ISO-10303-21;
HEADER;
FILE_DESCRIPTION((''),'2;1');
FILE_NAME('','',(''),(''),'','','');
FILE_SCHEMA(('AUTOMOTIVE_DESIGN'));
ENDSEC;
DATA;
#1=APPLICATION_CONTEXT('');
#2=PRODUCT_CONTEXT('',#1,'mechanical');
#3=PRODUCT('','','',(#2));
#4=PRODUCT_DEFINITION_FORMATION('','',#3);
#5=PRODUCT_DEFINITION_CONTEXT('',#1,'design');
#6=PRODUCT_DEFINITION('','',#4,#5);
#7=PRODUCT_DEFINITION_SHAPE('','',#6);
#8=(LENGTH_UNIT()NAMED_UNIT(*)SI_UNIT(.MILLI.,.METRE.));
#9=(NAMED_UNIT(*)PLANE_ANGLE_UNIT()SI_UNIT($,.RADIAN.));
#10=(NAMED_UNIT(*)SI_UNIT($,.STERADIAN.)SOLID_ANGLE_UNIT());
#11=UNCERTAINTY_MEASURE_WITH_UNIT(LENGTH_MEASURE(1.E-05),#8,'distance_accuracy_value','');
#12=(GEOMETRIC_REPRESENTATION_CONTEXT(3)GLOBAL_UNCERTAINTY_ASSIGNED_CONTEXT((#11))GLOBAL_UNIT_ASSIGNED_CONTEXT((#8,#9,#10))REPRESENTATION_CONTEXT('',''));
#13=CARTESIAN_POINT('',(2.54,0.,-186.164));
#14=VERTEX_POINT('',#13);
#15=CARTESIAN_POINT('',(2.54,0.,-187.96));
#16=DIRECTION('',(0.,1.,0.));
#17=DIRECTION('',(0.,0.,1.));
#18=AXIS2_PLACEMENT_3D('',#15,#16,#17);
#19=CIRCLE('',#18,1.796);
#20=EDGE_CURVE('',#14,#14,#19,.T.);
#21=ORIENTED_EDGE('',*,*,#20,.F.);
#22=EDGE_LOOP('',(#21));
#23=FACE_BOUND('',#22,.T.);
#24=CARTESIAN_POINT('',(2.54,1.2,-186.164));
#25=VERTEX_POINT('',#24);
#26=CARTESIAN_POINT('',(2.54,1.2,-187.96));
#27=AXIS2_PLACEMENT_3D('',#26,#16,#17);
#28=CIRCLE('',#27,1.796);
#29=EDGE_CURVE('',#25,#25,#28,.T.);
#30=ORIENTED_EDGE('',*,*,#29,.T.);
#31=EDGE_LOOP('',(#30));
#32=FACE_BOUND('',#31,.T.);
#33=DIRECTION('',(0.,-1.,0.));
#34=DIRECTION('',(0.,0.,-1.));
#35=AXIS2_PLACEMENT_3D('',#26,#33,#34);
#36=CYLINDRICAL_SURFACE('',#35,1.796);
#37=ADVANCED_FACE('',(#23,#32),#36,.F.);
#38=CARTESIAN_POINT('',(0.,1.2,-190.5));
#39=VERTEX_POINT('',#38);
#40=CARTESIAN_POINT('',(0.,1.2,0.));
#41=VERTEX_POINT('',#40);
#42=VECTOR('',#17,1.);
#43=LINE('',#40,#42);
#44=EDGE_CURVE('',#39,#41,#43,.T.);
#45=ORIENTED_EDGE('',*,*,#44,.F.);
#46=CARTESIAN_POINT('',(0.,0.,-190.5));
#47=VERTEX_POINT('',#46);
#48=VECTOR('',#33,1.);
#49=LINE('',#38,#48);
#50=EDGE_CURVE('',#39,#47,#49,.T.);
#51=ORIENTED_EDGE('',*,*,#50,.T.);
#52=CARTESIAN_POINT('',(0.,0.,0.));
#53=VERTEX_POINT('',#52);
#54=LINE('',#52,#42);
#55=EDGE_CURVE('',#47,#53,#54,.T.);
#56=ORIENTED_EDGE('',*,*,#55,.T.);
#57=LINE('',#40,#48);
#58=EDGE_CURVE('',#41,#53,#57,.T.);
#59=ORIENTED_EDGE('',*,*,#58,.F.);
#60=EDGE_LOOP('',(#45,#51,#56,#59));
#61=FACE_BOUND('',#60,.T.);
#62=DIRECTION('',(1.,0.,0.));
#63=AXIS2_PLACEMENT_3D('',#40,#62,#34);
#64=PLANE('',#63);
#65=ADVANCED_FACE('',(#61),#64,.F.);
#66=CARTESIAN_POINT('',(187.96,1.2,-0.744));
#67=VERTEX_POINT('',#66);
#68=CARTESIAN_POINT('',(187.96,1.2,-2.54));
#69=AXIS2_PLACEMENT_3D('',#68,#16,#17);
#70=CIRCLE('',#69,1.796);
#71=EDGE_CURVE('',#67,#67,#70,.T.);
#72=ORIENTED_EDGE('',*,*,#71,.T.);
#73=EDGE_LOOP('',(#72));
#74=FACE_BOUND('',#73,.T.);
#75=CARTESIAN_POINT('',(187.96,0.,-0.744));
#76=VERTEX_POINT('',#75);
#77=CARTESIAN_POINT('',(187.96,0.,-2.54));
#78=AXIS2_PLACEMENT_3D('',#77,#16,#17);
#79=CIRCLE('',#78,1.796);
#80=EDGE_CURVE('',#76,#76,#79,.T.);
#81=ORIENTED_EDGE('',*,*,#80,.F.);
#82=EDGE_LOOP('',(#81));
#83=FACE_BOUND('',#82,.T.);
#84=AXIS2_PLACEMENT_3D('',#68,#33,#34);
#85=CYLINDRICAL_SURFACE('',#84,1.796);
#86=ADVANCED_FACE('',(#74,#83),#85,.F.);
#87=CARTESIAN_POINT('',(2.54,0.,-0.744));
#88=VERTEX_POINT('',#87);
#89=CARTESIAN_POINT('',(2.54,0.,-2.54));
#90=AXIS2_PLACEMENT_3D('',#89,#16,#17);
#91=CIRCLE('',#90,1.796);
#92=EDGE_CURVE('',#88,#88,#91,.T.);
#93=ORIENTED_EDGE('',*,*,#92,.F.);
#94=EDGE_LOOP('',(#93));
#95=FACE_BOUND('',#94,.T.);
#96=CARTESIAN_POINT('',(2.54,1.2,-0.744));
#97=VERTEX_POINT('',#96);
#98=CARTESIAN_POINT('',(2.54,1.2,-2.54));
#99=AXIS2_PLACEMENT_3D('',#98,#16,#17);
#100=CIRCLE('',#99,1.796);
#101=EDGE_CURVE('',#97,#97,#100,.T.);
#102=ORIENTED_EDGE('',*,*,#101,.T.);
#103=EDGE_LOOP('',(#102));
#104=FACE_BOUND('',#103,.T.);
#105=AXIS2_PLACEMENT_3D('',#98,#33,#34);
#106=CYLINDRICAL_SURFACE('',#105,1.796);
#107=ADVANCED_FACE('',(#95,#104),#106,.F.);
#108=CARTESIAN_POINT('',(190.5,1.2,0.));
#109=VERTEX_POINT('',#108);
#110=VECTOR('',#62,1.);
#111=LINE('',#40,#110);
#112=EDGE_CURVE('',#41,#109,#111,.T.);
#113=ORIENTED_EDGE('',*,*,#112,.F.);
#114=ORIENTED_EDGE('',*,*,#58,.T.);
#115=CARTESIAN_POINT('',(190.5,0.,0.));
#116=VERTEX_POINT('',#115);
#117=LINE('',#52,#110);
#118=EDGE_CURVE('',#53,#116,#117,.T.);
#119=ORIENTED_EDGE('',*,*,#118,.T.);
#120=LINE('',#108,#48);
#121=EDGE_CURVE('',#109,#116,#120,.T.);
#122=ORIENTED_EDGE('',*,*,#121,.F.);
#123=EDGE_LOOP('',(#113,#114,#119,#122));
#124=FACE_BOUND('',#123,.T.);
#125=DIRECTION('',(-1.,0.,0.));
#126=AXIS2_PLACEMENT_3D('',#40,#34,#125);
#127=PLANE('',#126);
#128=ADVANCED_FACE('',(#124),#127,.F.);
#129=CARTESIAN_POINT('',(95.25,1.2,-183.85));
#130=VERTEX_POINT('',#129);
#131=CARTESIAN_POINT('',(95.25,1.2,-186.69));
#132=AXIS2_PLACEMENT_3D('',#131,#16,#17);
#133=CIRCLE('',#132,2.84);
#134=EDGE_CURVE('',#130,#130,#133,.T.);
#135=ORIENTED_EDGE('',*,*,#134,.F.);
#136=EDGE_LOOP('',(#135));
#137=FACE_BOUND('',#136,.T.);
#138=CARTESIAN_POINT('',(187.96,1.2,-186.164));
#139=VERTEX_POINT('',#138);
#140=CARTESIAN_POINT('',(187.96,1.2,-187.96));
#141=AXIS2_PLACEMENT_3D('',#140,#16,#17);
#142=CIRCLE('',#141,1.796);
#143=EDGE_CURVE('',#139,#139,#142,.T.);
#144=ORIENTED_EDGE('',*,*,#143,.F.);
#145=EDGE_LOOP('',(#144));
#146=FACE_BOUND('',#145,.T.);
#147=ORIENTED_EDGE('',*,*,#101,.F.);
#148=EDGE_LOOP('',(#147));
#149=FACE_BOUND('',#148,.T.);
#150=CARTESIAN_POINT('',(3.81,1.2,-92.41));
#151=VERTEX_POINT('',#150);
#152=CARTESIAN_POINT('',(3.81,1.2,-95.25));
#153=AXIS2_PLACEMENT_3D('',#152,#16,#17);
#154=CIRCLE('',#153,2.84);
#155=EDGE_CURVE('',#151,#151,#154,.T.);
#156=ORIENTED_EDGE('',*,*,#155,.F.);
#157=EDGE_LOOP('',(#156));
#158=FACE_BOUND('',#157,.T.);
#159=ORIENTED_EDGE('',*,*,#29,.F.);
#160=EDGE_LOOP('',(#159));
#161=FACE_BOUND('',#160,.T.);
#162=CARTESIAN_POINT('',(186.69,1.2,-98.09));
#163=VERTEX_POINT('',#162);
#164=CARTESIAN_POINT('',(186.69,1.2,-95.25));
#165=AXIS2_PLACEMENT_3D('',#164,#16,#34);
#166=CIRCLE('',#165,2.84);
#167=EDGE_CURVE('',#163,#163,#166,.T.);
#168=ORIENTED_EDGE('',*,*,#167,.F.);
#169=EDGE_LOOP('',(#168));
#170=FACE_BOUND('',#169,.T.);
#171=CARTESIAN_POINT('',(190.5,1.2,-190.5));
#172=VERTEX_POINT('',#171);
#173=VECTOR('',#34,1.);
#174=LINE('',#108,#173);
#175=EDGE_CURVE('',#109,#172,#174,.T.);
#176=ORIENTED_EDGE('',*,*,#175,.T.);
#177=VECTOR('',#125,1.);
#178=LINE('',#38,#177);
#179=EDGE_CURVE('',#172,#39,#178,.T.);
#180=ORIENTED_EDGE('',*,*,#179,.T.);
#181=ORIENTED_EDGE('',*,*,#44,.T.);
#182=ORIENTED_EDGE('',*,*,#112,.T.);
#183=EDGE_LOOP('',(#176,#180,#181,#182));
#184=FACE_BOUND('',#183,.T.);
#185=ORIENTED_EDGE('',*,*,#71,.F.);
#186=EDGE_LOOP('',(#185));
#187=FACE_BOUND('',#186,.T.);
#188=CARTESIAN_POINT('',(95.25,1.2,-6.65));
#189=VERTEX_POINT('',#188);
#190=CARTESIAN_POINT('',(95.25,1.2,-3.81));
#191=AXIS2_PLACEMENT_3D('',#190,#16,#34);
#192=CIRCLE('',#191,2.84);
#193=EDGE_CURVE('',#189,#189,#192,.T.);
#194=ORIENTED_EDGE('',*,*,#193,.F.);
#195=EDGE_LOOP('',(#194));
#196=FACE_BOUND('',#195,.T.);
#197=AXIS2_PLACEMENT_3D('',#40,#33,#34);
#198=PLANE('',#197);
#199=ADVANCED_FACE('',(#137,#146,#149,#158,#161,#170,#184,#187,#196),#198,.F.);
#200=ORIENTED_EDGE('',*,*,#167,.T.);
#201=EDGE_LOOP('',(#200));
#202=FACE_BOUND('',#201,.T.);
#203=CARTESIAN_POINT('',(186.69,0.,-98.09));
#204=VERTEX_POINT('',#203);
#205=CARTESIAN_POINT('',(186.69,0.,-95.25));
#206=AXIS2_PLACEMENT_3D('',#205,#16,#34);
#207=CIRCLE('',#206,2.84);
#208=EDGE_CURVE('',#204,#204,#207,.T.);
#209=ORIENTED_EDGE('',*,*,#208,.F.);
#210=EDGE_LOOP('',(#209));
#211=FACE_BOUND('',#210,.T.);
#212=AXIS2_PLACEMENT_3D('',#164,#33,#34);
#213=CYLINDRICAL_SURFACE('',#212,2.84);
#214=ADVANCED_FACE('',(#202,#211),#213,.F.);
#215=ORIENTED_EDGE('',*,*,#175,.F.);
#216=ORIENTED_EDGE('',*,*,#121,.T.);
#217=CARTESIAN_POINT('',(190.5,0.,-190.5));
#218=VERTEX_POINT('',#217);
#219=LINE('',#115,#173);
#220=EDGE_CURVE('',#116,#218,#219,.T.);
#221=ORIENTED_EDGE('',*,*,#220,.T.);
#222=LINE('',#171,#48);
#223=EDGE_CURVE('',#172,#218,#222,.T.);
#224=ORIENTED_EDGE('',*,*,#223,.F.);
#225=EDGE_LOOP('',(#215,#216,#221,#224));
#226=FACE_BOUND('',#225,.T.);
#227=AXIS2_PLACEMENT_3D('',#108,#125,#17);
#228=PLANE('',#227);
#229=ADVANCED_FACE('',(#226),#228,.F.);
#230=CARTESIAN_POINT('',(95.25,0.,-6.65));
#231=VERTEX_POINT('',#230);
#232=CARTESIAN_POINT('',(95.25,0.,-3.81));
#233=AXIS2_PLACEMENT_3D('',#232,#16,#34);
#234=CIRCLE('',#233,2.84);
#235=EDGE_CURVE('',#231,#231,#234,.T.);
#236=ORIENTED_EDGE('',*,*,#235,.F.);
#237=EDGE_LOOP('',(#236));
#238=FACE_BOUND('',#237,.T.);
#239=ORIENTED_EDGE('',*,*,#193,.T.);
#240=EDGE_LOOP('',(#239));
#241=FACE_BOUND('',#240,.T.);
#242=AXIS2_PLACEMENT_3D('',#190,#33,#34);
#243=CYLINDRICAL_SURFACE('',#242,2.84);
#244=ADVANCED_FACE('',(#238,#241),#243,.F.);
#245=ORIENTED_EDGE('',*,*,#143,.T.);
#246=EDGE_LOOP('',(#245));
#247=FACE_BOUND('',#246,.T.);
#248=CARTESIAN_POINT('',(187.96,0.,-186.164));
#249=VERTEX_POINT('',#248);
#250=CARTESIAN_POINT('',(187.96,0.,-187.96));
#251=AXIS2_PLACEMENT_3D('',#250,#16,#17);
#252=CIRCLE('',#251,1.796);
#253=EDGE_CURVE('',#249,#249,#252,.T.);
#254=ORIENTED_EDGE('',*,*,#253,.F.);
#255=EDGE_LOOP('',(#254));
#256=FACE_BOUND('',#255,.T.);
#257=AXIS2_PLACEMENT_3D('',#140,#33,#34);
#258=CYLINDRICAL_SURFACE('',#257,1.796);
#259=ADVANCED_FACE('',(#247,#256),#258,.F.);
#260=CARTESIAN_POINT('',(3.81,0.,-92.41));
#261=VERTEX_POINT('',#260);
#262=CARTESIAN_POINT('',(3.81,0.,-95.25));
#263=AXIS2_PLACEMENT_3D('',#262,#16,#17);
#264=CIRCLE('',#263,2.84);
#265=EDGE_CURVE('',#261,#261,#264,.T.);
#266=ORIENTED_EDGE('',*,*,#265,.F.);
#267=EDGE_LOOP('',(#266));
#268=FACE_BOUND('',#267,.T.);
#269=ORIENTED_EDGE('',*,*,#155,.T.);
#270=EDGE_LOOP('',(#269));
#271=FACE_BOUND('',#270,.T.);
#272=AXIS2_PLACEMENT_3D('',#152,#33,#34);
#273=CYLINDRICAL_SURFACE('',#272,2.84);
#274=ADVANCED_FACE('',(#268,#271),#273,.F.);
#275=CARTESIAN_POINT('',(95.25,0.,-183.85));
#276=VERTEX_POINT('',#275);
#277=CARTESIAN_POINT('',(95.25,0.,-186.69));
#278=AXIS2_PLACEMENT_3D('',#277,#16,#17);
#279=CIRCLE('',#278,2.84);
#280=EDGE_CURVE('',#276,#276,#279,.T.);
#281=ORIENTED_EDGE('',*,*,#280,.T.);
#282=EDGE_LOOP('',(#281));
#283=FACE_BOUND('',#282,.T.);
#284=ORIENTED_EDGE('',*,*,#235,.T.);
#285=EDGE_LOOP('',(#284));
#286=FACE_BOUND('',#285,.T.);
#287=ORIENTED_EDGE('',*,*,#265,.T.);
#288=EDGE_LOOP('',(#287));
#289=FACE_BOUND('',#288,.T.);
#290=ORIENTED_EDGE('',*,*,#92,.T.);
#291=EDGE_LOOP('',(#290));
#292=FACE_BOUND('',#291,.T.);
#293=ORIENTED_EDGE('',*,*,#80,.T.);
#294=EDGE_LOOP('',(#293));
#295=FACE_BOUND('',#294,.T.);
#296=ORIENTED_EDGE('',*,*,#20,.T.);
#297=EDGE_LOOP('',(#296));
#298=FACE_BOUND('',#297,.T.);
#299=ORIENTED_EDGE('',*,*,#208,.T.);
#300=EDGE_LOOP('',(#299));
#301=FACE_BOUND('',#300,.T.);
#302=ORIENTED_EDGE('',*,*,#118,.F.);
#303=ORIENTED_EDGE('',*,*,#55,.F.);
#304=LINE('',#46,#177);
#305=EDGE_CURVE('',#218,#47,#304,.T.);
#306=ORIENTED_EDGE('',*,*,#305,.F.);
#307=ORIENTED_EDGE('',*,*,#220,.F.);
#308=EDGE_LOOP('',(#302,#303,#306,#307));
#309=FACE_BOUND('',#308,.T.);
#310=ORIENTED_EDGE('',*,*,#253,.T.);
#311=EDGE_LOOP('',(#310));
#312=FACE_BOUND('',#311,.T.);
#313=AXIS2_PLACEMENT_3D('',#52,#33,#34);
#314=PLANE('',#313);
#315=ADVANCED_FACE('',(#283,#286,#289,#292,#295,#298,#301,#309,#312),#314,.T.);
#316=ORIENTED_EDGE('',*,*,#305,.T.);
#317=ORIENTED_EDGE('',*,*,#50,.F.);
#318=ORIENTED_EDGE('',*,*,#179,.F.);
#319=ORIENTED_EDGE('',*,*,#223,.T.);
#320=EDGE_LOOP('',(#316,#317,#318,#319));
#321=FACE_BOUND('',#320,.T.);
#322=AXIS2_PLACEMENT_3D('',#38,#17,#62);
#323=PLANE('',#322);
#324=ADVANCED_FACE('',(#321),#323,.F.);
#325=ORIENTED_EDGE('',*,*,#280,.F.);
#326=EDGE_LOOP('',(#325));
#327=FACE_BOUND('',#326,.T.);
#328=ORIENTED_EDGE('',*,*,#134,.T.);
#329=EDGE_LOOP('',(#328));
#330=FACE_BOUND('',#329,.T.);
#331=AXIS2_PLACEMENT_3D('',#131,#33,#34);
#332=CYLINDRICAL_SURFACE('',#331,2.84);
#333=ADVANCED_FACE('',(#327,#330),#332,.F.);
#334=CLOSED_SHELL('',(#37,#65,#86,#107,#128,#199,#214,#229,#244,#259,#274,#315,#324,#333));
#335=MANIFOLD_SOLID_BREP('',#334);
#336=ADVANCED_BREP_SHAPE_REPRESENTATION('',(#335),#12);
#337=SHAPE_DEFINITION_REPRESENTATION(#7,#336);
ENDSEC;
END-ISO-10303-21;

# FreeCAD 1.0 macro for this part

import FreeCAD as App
import Part
import Sketcher

V = App.Vector
Q = App.Units.Quantity


def add_polygon(sketch, points):
    """Adds a closed chain of lines whose ends are joined by coincident constraints."""
    first, n = sketch.GeometryCount, len(points)
    for a, b in zip(points, points[1:] + points[:1]):
        sketch.addGeometry(Part.LineSegment(App.Vector(*a, 0), App.Vector(*b, 0)), False)
    for i in range(n):
        sketch.addConstraint(Sketcher.Constraint("Coincident", first + i, 2, first + (i + 1) % n, 1))

doc = App.newDocument("Part")
body = doc.addObject("PartDesign::Body", "Body")

# Sketch on XZ plane
sketch1 = doc.addObject("Sketcher::SketchObject", "Sketch")
body.addObject(sketch1)
sketch1.AttachmentSupport = (doc.XZ_Plane, [""])
sketch1.MapMode = "FlatFace"
add_polygon(sketch1, [(0, -190.5), (0, 0), (190.5, 0), (190.5, -190.5)])  # lines 0-3
sketch1.addGeometry(Part.Circle(V(2.5, -2.5, 0), V(0, 0, 1), 1.8), False)  # 4
sketch1.addGeometry(Part.Circle(V(95.2, -3.8, 0), V(0, 0, 1), 2.8), False)  # 5
sketch1.addGeometry(Part.Circle(V(3.8, -95.2, 0), V(0, 0, 1), 2.8), False)  # 6
sketch1.addGeometry(Part.Circle(V(188, -2.5, 0), V(0, 0, 1), 1.8), False)  # 7
sketch1.addGeometry(Part.Circle(V(186.7, -95.2, 0), V(0, 0, 1), 2.8), False)  # 8
sketch1.addGeometry(Part.Circle(V(2.5, -188, 0), V(0, 0, 1), 1.8), False)  # 9
sketch1.addGeometry(Part.Circle(V(95.2, -186.7, 0), V(0, 0, 1), 2.8), False)  # 10
sketch1.addGeometry(Part.Circle(V(188, -188, 0), V(0, 0, 1), 1.8), False)  # 11
sketch1.addConstraint([
    Sketcher.Constraint("Vertical", 0),
    Sketcher.Constraint("Horizontal", 1),
    Sketcher.Constraint("Vertical", 2),
    Sketcher.Constraint("Horizontal", 3),
    Sketcher.Constraint("Coincident", 0, 2, -1, 1),
    Sketcher.Constraint("Equal", 5, 6),
    Sketcher.Constraint("Equal", 4, 7),
    Sketcher.Constraint("Equal", 6, 8),
    Sketcher.Constraint("Equal", 7, 9),
    Sketcher.Constraint("Equal", 8, 10),
    Sketcher.Constraint("Equal", 9, 11),
    Sketcher.Constraint("Horizontal", 4, 3, 7, 3),
    Sketcher.Constraint("Horizontal", 6, 3, 8, 3),
    Sketcher.Constraint("Horizontal", 9, 3, 11, 3),
    Sketcher.Constraint("Vertical", 4, 3, 9, 3),
    Sketcher.Constraint("Vertical", 5, 3, 10, 3),
    Sketcher.Constraint("Vertical", 7, 3, 11, 3),
    Sketcher.Constraint("Equal", 3, 0),
    Sketcher.Constraint("Diameter", 5, Q("5.68 mm")),
    Sketcher.Constraint("Diameter", 4, Q("3.592 mm")),
    Sketcher.Constraint("DistanceX", 1, 1, 1, 2, Q("190.5 mm")),
    Sketcher.Constraint("DistanceX", -1, 1, 4, 3, Q("2.54 mm")),
    Sketcher.Constraint("DistanceY", 4, 3, -1, 1, Q("2.54 mm")),
    Sketcher.Constraint("DistanceX", -1, 1, 5, 3, Q("95.25 mm")),
    Sketcher.Constraint("DistanceY", 5, 3, -1, 1, Q("3.81 mm")),
    Sketcher.Constraint("DistanceX", -1, 1, 6, 3, Q("3.81 mm")),
    Sketcher.Constraint("DistanceY", 6, 3, -1, 1, Q("95.25 mm")),
    Sketcher.Constraint("DistanceX", -1, 1, 7, 3, Q("187.96 mm")),
    Sketcher.Constraint("DistanceX", -1, 1, 8, 3, Q("186.69 mm")),
    Sketcher.Constraint("DistanceY", 9, 3, -1, 1, Q("187.96 mm")),
    Sketcher.Constraint("DistanceY", 10, 3, -1, 1, Q("186.69 mm")),
])
pad1 = doc.addObject("PartDesign::Pad", "Pad")
body.addObject(pad1)
pad1.Profile = sketch1
pad1.Length = 1.2
pad1.Reversed = True

doc.recompute()
